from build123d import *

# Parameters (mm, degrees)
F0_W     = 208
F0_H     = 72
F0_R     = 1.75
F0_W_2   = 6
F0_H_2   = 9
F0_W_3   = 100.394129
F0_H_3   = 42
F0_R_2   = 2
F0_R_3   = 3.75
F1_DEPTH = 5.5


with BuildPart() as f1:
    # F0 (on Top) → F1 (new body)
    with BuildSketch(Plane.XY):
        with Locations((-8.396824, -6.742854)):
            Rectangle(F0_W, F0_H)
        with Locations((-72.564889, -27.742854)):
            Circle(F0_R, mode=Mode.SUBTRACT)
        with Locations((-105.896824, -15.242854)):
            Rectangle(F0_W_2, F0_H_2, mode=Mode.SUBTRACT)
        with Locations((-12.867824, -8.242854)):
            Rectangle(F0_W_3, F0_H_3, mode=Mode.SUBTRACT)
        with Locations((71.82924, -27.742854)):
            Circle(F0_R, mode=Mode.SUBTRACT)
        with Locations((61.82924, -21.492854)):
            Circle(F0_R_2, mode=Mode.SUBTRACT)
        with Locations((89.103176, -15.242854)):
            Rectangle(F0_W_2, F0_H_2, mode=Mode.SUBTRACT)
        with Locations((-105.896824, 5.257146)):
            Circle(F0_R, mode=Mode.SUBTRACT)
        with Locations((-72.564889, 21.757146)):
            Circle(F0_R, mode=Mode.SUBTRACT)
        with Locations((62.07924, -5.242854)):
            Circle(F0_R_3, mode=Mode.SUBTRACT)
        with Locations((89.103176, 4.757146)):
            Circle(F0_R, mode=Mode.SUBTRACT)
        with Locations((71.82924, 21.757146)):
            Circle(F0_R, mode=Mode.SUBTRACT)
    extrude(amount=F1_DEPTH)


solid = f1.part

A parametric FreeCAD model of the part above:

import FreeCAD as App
import Part
import Sketcher

V = App.Vector
Q = App.Units.Quantity


def add_polygon(sketch, points):
    """Adds a closed chain of lines whose ends are joined by coincident constraints."""
    first, n = sketch.GeometryCount, len(points)
    for a, b in zip(points, points[1:] + points[:1]):
        sketch.addGeometry(Part.LineSegment(App.Vector(*a, 0), App.Vector(*b, 0)), False)
    for i in range(n):
        sketch.addConstraint(Sketcher.Constraint("Coincident", first + i, 2, first + (i + 1) % n, 1))

doc = App.newDocument("Part")
body = doc.addObject("PartDesign::Body", "Body")

# Sketch on XY plane
sketch1 = body.newObject("Sketcher::SketchObject", "Sketch")
sketch1.AttachmentSupport = (doc.getObject("XY_Plane"), [""])
sketch1.MapMode = "FlatFace"
add_polygon(sketch1, [(-112.4, 29.3), (-112.4, -42.7), (95.6, -42.7), (95.6, 29.3)])  # lines 0-3
sketch1.addGeometry(Part.Circle(V(-72.6, -27.7, 0), V(0, 0, 1), 1.8), False)  # 4
add_polygon(sketch1, [(-102.9, -19.7), (-108.9, -19.7), (-108.9, -10.7), (-102.9, -10.7)])  # lines 5-8
add_polygon(sketch1, [(37.3, -29.2), (-63.1, -29.2), (-63.1, 12.8), (37.3, 12.8)])  # lines 9-12
sketch1.addGeometry(Part.Circle(V(71.8, -27.7, 0), V(0, 0, 1), 1.8), False)  # 13
sketch1.addGeometry(Part.Circle(V(61.8, -21.5, 0), V(0, 0, 1), 2), False)  # 14
add_polygon(sketch1, [(92.1, -19.7), (86.1, -19.7), (86.1, -10.7), (92.1, -10.7)])  # lines 15-18
sketch1.addGeometry(Part.Circle(V(62.1, -5.2, 0), V(0, 0, 1), 3.8), False)  # 19
sketch1.addGeometry(Part.Circle(V(-105.9, 5.3, 0), V(0, 0, 1), 1.8), False)  # 20
sketch1.addGeometry(Part.Circle(V(-72.6, 21.8, 0), V(0, 0, 1), 1.8), False)  # 21
sketch1.addGeometry(Part.Circle(V(89.1, 4.8, 0), V(0, 0, 1), 1.8), False)  # 22
sketch1.addGeometry(Part.Circle(V(71.8, 21.8, 0), V(0, 0, 1), 1.8), False)  # 23
sketch1.addConstraint(Sketcher.Constraint("Vertical", 0))
sketch1.addConstraint(Sketcher.Constraint("Horizontal", 1))
sketch1.addConstraint(Sketcher.Constraint("Vertical", 2))
sketch1.addConstraint(Sketcher.Constraint("Horizontal", 3))
sketch1.addConstraint(Sketcher.Constraint("Horizontal", 5))
sketch1.addConstraint(Sketcher.Constraint("Vertical", 6))
sketch1.addConstraint(Sketcher.Constraint("Horizontal", 7))
sketch1.addConstraint(Sketcher.Constraint("Vertical", 8))
sketch1.addConstraint(Sketcher.Constraint("Horizontal", 9))
sketch1.addConstraint(Sketcher.Constraint("Vertical", 10))
sketch1.addConstraint(Sketcher.Constraint("Horizontal", 11))
sketch1.addConstraint(Sketcher.Constraint("Vertical", 12))
sketch1.addConstraint(Sketcher.Constraint("Horizontal", 15))
sketch1.addConstraint(Sketcher.Constraint("Vertical", 16))
sketch1.addConstraint(Sketcher.Constraint("Horizontal", 17))
sketch1.addConstraint(Sketcher.Constraint("Vertical", 18))
sketch1.addConstraint(Sketcher.Constraint("Equal", 4, 13))
sketch1.addConstraint(Sketcher.Constraint("Equal", 13, 20))
sketch1.addConstraint(Sketcher.Constraint("Equal", 20, 21))
sketch1.addConstraint(Sketcher.Constraint("Equal", 21, 22))
sketch1.addConstraint(Sketcher.Constraint("Equal", 22, 23))
sketch1.addConstraint(Sketcher.Constraint("Horizontal", 4, 3, 13, 3))
sketch1.addConstraint(Sketcher.Constraint("Horizontal", 21, 3, 23, 3))
sketch1.addConstraint(Sketcher.Constraint("Horizontal", 8, 2, 15, 2))
sketch1.addConstraint(Sketcher.Constraint("Horizontal", 7, 2, 16, 2))
sketch1.addConstraint(Sketcher.Constraint("Vertical", 4, 3, 21, 3))
sketch1.addConstraint(Sketcher.Constraint("Vertical", 13, 3, 23, 3))
sketch1.addConstraint(Sketcher.Constraint("Equal", 7, 15))
sketch1.addConstraint(Sketcher.Constraint("Diameter", 14, Q("4 mm")))
sketch1.addConstraint(Sketcher.Constraint("Diameter", 4, Q("3.5 mm")))
sketch1.addConstraint(Sketcher.Constraint("Diameter", 19, Q("7.5 mm")))
sketch1.addConstraint(Sketcher.Constraint("DistanceX", 1, 1, 1, 2, Q("208 mm")))
sketch1.addConstraint(Sketcher.Constraint("DistanceX", 5, 2, 5, 1, Q("6 mm")))
sketch1.addConstraint(Sketcher.Constraint("DistanceY", 0, 2, 0, 1, Q("72 mm")))
sketch1.addConstraint(Sketcher.Constraint("DistanceY", 6, 1, 6, 2, Q("9 mm")))
sketch1.addConstraint(Sketcher.Constraint("DistanceY", 10, 1, 10, 2, Q("42 mm")))
sketch1.addConstraint(Sketcher.Constraint("DistanceX", 14, 3, 13, 3, Q("10 mm")))
sketch1.addConstraint(Sketcher.Constraint("DistanceY", 4, 3, 20, 3, Q("33 mm")))
sketch1.addConstraint(Sketcher.Constraint("DistanceY", 19, 3, 21, 3, Q("27 mm")))
sketch1.addConstraint(Sketcher.Constraint("DistanceY", 19, 3, 22, 3, Q("10 mm")))
sketch1.addConstraint(Sketcher.Constraint("DistanceY", 0, 2, 4, 3, Q("15 mm")))
sketch1.addConstraint(Sketcher.Constraint("DistanceY", 0, 2, 5, 2, Q("23 mm")))
sketch1.addConstraint(Sketcher.Constraint("DistanceX", 5, 2, 20, 3, Q("3 mm")))
sketch1.addConstraint(Sketcher.Constraint("DistanceY", 10, 2, 21, 3, Q("9 mm")))
sketch1.addConstraint(Sketcher.Constraint("DistanceX", 15, 2, 22, 3, Q("3 mm")))
sketch1.addConstraint(Sketcher.Constraint("DistanceY", 13, 3, 19, 3, Q("22.5 mm")))
sketch1.addConstraint(Sketcher.Constraint("DistanceX", 0, 2, 20, 3, Q("6.5 mm")))
sketch1.addConstraint(Sketcher.Constraint("DistanceX", 22, 3, 1, 2, Q("6.5 mm")))
sketch1.addConstraint(Sketcher.Constraint("DistanceX", 4, 3, 9, 2, Q("9.5 mm")))
sketch1.addConstraint(Sketcher.Constraint("DistanceX", 11, 2, 23, 3, Q("34.5 mm")))
sketch1.addConstraint(Sketcher.Constraint("DistanceY", 13, 3, 14, 3, Q("6.25 mm")))
sketch1.addConstraint(Sketcher.Constraint("DistanceX", 14, 3, 19, 3, Q("0.25 mm")))
sketch1.addConstraint(Sketcher.Constraint("DistanceX", 9, 2, 9, 1, Q("100.394129 mm")))
sketch1.addConstraint(Sketcher.Constraint("DistanceX", 4, 3, -1, 1, Q("72.564889 mm")))
sketch1.addConstraint(Sketcher.Constraint("DistanceY", 4, 3, -1, 1, Q("27.742854 mm")))
sketch1.addConstraint(Sketcher.Constraint("DistanceX", 20, 3, -1, 1, Q("105.896824 mm")))
pad1 = body.newObject("PartDesign::Pad", "Pad")
pad1.Profile = sketch1
pad1.Length = 5.5

doc.recompute()
